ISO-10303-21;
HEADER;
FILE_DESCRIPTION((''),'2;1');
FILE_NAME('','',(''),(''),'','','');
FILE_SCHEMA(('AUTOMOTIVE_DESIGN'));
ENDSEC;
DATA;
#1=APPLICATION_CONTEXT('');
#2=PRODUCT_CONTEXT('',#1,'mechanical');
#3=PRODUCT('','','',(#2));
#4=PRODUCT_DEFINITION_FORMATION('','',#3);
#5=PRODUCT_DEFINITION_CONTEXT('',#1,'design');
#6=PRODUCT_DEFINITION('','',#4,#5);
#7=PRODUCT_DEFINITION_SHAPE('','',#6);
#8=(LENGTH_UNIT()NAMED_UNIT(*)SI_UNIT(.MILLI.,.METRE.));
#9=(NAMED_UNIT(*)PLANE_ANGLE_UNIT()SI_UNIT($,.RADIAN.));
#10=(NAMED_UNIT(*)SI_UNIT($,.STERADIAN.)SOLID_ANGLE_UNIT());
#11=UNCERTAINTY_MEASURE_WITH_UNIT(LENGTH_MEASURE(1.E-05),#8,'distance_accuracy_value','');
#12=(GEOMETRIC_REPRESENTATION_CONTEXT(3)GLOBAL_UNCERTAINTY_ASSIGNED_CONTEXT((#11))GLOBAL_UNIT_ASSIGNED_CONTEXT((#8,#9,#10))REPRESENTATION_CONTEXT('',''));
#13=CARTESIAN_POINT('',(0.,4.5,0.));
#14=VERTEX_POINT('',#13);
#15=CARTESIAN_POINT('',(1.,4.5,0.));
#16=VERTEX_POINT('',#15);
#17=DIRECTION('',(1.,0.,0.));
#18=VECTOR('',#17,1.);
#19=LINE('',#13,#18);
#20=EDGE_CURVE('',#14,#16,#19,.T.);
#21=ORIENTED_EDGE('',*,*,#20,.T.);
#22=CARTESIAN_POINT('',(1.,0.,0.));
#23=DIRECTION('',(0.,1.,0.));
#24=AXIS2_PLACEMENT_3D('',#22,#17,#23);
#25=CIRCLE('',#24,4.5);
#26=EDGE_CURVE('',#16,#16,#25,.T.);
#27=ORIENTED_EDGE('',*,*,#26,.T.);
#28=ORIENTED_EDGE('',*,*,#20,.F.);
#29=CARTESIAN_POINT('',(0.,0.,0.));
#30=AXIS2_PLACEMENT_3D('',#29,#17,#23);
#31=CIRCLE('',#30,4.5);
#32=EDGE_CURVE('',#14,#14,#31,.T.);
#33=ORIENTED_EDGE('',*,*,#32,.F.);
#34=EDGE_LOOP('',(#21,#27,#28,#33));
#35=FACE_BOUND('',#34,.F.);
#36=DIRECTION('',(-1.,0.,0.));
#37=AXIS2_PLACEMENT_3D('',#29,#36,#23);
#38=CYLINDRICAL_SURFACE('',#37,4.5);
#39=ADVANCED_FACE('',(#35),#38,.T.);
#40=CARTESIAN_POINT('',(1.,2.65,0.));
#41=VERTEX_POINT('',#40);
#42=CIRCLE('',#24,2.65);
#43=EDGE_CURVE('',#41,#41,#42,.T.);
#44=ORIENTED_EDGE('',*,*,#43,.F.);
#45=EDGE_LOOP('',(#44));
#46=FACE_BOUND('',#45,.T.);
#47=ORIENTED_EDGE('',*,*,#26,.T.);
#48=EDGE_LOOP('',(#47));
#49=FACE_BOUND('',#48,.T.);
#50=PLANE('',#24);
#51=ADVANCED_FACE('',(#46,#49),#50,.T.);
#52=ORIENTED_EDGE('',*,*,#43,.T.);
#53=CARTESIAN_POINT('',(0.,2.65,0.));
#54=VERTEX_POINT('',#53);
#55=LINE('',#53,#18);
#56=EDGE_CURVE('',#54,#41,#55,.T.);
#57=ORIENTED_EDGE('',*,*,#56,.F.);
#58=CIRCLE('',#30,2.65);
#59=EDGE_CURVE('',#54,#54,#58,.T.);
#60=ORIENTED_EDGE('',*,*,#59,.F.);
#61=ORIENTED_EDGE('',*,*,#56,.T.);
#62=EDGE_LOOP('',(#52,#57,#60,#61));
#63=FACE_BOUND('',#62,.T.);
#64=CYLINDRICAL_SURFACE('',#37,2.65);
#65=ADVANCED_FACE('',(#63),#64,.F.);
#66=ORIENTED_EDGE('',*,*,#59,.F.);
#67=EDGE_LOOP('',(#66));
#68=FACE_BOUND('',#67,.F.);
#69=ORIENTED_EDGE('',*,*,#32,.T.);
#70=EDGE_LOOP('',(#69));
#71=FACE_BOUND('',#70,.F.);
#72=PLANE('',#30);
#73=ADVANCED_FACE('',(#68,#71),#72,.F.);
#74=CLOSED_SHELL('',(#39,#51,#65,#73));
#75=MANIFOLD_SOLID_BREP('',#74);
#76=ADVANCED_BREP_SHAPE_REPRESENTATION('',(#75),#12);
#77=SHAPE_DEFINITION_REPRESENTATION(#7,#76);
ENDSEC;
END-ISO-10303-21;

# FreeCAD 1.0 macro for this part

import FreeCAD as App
import Part
import Sketcher

V = App.Vector
Q = App.Units.Quantity

doc = App.newDocument("Part")
body = doc.addObject("PartDesign::Body", "Body")

# Sketch on YZ plane
sketch1 = body.newObject("Sketcher::SketchObject", "Sketch")
sketch1.AttachmentSupport = (doc.getObject("YZ_Plane"), [""])
sketch1.MapMode = "FlatFace"
sketch1.addGeometry(Part.Circle(V(0, 0, 0), V(0, 0, 1), 4.5), False)
sketch1.addGeometry(Part.Circle(V(0, 0, 0), V(0, 0, 1), 2.6), False)
sketch1.addConstraint(Sketcher.Constraint("Coincident", 0, 3, -1, 1))
sketch1.addConstraint(Sketcher.Constraint("Coincident", 1, 3, -1, 1))
sketch1.addConstraint(Sketcher.Constraint("Diameter", 0, Q("9 mm")))
sketch1.addConstraint(Sketcher.Constraint("Diameter", 1, Q("5.3 mm")))
pad1 = body.newObject("PartDesign::Pad", "Pad")
pad1.Profile = sketch1
pad1.Length = 1

doc.recompute()
